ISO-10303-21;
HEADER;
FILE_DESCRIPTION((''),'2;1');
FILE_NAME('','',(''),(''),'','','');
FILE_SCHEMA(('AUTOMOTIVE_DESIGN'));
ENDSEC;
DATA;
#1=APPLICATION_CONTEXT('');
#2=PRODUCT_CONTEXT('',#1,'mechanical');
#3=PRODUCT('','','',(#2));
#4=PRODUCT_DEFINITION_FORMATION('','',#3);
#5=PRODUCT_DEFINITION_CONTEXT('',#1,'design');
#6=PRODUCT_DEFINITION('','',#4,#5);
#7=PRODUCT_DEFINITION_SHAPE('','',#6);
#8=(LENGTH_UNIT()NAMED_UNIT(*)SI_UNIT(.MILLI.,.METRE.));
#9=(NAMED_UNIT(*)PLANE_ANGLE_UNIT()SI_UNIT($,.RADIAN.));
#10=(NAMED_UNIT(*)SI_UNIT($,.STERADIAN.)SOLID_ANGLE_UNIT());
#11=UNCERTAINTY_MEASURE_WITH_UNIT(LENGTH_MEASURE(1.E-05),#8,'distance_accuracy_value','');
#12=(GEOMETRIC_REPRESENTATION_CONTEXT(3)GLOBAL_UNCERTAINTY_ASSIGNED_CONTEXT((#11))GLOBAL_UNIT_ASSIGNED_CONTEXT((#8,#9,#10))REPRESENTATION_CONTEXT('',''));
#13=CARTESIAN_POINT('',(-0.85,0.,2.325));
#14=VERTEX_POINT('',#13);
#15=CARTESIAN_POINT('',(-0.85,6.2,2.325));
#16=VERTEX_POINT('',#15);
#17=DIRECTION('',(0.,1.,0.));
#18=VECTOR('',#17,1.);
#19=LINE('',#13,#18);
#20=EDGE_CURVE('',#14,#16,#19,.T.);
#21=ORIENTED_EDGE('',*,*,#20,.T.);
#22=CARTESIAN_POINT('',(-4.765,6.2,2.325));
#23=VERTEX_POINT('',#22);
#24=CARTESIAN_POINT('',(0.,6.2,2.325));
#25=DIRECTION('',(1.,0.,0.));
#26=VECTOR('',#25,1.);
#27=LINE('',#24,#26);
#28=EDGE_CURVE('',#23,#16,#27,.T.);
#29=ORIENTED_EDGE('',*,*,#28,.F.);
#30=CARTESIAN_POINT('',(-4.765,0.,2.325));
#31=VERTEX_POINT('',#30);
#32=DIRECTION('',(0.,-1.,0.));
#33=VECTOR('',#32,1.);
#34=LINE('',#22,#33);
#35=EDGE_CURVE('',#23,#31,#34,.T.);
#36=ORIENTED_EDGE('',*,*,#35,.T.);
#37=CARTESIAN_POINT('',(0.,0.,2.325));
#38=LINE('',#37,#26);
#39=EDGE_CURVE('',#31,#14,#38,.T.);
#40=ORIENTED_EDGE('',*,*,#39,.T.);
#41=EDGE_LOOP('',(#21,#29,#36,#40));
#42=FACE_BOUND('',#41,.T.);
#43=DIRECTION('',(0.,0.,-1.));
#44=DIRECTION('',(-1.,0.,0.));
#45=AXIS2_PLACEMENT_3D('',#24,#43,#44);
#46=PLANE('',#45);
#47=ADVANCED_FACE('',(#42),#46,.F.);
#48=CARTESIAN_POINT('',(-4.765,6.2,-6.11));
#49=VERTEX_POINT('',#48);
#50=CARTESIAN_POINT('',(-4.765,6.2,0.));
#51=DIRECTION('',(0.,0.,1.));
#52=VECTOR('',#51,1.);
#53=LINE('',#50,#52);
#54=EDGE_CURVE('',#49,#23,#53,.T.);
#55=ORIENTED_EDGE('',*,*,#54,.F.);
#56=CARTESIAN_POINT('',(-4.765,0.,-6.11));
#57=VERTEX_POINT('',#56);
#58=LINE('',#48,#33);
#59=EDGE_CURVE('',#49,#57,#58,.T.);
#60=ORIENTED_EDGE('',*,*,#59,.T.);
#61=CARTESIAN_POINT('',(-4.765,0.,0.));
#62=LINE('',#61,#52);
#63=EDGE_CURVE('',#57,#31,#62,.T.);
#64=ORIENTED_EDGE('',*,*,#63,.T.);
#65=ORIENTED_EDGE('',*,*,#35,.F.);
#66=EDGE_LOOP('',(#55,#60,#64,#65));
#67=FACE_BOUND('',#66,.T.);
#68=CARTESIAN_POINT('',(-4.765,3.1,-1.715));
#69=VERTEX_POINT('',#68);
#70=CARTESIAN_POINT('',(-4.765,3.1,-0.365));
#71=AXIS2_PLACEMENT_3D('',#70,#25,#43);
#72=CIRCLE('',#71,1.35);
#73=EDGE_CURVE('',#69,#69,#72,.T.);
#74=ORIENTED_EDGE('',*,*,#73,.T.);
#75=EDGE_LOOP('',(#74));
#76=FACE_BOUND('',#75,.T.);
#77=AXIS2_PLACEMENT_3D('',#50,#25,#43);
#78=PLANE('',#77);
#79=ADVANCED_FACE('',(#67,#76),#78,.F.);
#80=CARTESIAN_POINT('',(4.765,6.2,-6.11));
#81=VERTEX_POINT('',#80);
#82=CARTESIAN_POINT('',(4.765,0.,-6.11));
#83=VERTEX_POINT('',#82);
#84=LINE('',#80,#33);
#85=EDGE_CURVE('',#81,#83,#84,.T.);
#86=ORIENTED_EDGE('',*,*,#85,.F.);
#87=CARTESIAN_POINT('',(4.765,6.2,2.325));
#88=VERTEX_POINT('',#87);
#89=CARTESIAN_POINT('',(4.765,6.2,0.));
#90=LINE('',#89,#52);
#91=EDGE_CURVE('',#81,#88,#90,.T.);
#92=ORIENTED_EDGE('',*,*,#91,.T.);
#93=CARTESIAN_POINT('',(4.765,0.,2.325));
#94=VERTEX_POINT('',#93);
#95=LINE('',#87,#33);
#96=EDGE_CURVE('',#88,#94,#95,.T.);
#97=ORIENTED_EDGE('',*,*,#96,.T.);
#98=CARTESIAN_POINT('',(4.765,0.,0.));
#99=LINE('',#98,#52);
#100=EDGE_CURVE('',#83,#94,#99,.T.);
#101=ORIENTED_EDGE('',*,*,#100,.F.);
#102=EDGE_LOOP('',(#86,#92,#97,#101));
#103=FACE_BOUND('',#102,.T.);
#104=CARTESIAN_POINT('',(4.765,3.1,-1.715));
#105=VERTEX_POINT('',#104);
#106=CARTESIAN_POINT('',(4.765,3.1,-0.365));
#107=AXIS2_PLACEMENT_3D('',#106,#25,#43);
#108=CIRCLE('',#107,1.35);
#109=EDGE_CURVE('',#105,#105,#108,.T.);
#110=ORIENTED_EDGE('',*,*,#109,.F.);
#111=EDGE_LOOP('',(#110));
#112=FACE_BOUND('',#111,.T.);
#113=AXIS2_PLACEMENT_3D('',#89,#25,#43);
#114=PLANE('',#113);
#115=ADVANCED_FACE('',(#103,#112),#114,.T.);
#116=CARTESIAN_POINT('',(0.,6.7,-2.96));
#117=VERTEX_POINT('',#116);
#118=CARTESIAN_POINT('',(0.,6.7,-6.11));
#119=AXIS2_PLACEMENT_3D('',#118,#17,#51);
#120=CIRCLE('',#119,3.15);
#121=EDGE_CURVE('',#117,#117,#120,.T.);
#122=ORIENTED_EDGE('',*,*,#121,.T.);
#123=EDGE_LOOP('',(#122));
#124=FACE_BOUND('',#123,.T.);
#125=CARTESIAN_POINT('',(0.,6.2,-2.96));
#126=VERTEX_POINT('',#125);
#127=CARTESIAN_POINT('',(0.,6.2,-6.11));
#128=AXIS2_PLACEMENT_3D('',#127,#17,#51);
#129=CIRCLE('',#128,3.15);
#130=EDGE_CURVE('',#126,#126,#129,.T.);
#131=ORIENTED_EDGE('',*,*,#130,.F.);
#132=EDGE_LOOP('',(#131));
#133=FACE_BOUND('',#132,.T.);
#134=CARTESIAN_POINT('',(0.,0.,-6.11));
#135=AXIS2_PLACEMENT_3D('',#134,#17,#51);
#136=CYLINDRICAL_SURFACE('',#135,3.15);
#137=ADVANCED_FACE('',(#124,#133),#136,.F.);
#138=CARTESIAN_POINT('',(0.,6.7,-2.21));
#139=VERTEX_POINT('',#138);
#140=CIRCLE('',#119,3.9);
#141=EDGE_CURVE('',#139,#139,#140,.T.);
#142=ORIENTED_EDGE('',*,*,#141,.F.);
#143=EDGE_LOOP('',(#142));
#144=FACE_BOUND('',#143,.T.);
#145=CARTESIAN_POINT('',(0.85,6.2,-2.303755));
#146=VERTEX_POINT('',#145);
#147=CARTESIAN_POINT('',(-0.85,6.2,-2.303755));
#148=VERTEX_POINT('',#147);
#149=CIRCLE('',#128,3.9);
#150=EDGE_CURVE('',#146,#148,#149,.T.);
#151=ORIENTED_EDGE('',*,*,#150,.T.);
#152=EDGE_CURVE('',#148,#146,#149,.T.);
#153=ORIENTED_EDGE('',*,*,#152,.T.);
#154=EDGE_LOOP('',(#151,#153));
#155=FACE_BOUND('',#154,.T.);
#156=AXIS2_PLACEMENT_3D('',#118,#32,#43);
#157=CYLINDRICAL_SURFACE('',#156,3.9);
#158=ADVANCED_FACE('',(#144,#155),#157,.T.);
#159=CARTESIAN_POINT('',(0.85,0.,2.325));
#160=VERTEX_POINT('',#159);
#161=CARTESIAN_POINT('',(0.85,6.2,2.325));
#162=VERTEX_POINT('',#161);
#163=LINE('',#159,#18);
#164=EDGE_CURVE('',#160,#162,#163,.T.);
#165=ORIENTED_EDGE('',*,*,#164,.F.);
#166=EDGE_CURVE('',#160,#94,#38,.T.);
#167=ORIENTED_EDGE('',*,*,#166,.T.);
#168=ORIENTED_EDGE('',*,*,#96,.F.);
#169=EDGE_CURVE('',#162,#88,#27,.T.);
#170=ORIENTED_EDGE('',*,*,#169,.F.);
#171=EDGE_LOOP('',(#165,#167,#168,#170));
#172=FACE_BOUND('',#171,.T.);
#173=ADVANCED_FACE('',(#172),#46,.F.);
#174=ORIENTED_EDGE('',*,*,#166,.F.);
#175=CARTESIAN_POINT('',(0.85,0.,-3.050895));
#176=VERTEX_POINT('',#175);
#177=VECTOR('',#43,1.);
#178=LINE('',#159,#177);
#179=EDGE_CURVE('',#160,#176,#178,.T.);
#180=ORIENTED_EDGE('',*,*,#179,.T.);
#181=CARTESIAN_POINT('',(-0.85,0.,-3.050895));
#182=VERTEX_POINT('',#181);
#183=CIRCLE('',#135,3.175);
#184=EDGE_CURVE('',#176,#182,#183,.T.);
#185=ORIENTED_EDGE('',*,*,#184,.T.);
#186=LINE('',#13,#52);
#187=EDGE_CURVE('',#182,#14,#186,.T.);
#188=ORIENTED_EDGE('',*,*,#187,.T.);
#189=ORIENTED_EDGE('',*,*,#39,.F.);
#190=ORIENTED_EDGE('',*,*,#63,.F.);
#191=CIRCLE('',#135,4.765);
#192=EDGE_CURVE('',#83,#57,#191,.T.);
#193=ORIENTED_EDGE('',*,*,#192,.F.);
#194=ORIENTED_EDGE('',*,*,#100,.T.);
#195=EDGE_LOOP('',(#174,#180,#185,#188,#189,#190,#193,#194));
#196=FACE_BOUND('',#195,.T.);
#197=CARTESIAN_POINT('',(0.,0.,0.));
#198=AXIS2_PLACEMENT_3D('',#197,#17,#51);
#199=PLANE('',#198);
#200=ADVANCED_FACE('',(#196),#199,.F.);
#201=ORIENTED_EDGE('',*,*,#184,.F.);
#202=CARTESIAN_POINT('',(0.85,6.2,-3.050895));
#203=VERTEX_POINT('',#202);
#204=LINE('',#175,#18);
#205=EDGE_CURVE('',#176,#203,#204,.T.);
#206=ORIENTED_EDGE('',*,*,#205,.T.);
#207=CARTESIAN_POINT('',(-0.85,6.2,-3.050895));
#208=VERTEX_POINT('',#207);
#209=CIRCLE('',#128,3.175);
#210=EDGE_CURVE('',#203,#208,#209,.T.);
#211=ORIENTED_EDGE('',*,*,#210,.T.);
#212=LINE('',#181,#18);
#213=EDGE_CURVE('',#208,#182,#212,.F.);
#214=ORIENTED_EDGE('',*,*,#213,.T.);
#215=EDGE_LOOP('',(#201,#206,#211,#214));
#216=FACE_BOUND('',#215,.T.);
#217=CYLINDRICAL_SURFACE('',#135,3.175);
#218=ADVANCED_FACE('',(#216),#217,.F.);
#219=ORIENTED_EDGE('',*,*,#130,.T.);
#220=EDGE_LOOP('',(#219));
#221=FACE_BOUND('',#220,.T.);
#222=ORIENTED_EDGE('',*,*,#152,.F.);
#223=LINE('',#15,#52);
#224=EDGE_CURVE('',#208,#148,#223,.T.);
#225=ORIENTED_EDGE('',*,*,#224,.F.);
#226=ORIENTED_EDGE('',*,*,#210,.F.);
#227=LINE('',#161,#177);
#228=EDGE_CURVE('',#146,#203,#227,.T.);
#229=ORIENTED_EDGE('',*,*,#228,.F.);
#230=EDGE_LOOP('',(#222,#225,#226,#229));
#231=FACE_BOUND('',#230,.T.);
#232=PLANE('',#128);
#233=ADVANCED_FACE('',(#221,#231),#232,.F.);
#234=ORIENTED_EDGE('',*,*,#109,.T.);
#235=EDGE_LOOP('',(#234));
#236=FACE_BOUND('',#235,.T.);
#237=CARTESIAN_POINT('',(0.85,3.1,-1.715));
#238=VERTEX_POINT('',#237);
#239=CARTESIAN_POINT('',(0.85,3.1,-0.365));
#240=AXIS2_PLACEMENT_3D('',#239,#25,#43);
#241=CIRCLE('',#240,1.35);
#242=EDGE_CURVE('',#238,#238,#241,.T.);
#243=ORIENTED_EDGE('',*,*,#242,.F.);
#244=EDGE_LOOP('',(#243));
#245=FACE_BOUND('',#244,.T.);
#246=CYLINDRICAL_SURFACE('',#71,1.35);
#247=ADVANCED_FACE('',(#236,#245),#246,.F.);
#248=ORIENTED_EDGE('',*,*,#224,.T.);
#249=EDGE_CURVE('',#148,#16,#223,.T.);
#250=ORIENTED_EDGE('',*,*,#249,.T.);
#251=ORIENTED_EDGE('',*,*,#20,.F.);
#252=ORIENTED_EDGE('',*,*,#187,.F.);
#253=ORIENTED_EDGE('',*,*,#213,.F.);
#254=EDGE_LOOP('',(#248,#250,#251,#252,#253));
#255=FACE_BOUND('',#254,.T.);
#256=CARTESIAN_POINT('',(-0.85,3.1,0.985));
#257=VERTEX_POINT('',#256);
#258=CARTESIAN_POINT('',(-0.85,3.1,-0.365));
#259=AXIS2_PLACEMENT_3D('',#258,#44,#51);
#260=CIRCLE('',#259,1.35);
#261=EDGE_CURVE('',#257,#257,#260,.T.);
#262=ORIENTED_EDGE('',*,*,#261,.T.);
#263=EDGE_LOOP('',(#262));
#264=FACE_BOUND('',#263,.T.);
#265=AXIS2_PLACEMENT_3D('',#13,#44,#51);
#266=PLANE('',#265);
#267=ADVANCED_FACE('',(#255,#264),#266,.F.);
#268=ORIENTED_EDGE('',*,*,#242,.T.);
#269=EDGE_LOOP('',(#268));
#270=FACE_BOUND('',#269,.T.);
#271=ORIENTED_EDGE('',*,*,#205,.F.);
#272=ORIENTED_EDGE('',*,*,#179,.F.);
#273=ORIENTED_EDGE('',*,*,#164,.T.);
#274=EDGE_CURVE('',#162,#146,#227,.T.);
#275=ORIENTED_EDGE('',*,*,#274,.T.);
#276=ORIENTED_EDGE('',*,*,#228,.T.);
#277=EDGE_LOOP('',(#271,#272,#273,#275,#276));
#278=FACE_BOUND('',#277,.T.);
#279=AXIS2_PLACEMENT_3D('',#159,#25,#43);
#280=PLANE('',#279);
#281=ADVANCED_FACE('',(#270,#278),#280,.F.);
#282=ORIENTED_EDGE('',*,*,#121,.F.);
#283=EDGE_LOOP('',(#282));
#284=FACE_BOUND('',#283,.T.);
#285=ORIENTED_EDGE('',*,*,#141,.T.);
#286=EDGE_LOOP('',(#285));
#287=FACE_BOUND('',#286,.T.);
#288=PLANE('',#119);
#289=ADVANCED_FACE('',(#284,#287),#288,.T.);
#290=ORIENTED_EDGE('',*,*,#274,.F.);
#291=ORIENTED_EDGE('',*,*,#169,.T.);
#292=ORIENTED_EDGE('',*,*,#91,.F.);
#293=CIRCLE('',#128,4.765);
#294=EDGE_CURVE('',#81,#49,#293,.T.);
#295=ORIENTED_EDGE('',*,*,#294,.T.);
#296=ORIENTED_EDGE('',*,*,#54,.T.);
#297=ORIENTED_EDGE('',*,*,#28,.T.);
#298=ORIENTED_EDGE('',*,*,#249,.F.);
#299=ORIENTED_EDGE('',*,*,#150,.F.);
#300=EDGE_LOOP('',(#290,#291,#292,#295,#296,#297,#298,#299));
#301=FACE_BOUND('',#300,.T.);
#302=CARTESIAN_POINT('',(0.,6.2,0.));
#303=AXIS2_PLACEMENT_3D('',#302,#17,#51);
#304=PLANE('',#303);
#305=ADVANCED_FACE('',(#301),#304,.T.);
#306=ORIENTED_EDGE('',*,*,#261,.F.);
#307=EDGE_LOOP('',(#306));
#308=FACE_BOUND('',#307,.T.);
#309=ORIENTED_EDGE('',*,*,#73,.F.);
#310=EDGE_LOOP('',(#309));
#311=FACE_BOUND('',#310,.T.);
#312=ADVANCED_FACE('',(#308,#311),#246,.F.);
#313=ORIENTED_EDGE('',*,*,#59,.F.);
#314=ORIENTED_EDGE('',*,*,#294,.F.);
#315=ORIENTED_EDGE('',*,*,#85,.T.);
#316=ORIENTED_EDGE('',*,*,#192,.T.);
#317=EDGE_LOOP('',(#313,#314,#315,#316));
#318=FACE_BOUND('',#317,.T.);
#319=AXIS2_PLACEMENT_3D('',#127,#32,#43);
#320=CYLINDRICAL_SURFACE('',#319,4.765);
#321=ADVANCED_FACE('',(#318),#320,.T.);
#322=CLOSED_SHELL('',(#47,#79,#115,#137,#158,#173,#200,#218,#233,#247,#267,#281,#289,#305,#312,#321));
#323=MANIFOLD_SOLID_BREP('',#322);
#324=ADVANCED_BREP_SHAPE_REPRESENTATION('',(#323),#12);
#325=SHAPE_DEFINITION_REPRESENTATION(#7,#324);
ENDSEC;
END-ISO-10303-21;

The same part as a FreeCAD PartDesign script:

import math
import FreeCAD as App
import Part
import Sketcher
from FreeCAD import Vector


def add_polygon(sketch, points):
    """Adds a closed chain of lines whose ends are joined by coincident constraints."""
    first, n = sketch.GeometryCount, len(points)
    for a, b in zip(points, points[1:] + points[:1]):
        sketch.addGeometry(Part.LineSegment(App.Vector(*a, 0), App.Vector(*b, 0)), False)
    for i in range(n):
        sketch.addConstraint(Sketcher.Constraint("Coincident", first + i, 2, first + (i + 1) % n, 1))

doc = App.newDocument("Part")
params = doc.addObject("Spreadsheet::Sheet", "Params")
for row, (alias, value) in enumerate([
    ("pad1_length", "6.2 mm"),
    ("sketch2_diameter", "6.35 mm"),
    ("pocket1_length", "6.2 mm"),
    ("sketch3_width", "1.7 mm"),
    ("sketch3_height", "5.8 mm"),
    ("pocket2_length", "6.2 mm"),
    ("sketch4_diameter", "2.7 mm"),
    ("sketch5_diameter", "7.8 mm"),
    ("pad2_length", "0.5 mm"),
    ("sketch6_diameter", "6.3 mm"),
], start=1):
    params.set(f"A{row}", alias)
    params.set(f"B{row}", "=" + value)
    params.setAlias(f"B{row}", alias)

body = doc.addObject("PartDesign::Body", "Body")

# Sketch on XZ plane
sketch1 = body.newObject("Sketcher::SketchObject", "Sketch")
sketch1.AttachmentSupport = (doc.getObject("XZ_Plane"), [""])
sketch1.MapMode = "FlatFace"
sketch1.addGeometry([
    Part.LineSegment(Vector(-4.8, 2.3, 0), Vector(4.8, 2.3, 0)),
    Part.LineSegment(Vector(4.8, 2.3, 0), Vector(4.8, -6.1, 0)),
    Part.ArcOfCircle(Part.Circle(Vector(0, -6.1, 0), Vector(0, 0, 1), 4.8), math.radians(180), math.radians(360)),
    Part.LineSegment(Vector(-4.8, -6.1, 0), Vector(-4.8, 2.3, 0)),
], False)
sketch1.addConstraint([
    Sketcher.Constraint("Coincident", 0, 2, 1, 1),
    Sketcher.Constraint("Tangent", 1, 2, 2, 2),
    Sketcher.Constraint("Tangent", 2, 1, 3, 1),
    Sketcher.Constraint("Coincident", 3, 2, 0, 1),
    Sketcher.Constraint("Horizontal", 0),
    Sketcher.Constraint("Vertical", 1),
    Sketcher.Constraint("Vertical", 3),
    Sketcher.Constraint("PointOnObject", 2, 3, -2),
    Sketcher.Constraint("Radius", 2, 4.765),
    Sketcher.Constraint("DistanceY", 1, 2, 1, 1, 8.435),
    Sketcher.Constraint("DistanceY", 2, 3, -1, 1, 6.11),
])
pad1 = body.newObject("PartDesign::Pad", "Pad")
pad1.Profile = sketch1
pad1.setExpression("Length", "Params.pad1_length")
pad1.Reversed = True

# Sketch on XZ plane
sketch2 = body.newObject("Sketcher::SketchObject", "Sketch001")
sketch2.AttachmentSupport = (doc.getObject("XZ_Plane"), [""])
sketch2.MapMode = "FlatFace"
sketch2.AttachmentOffset = App.Placement(Vector(0, 0, -6.2), App.Rotation())
sketch2.addGeometry(Part.Circle(Vector(0, -6.1, 0), Vector(0, 0, 1), 3.2), False)
sketch2.addConstraint([
    Sketcher.Constraint("PointOnObject", 0, 3, -2),
    Sketcher.Constraint("Diameter", 0, 6.35),
    Sketcher.Constraint("DistanceY", 0, 3, -1, 1, 6.11),
])
sketch2.setExpression("Constraints[1]", "Params.sketch2_diameter")
pocket1 = body.newObject("PartDesign::Pocket", "Pocket")
pocket1.Profile = sketch2
pocket1.setExpression("Length", "Params.pocket1_length")
pocket1.Reversed = True

# Sketch on XZ plane
sketch3 = body.newObject("Sketcher::SketchObject", "Sketch002")
sketch3.AttachmentSupport = (doc.getObject("XZ_Plane"), [""])
sketch3.MapMode = "FlatFace"
sketch3.AttachmentOffset = App.Placement(Vector(0, 0, -6.2), App.Rotation())
add_polygon(sketch3, [(-0.8, -3.5), (-0.8, 2.3), (0.8, 2.3), (0.8, -3.5)])  # lines 0-3
sketch3.addConstraint([
    Sketcher.Constraint("Vertical", 0),
    Sketcher.Constraint("Horizontal", 1),
    Sketcher.Constraint("Vertical", 2),
    Sketcher.Constraint("Horizontal", 3),
    Sketcher.Constraint("DistanceX", 1, 1, 1, 2, 1.7),
    Sketcher.Constraint("DistanceY", 0, 1, 0, 2, 5.8),
    Sketcher.Constraint("DistanceX", 0, 2, -1, 1, 0.85),
    Sketcher.Constraint("DistanceY", -1, 1, 0, 2, 2.325),
])
sketch3.setExpression("Constraints[8]", "Params.sketch3_width")
sketch3.setExpression("Constraints[9]", "Params.sketch3_height")
pocket2 = body.newObject("PartDesign::Pocket", "Pocket001")
pocket2.Profile = sketch3
pocket2.setExpression("Length", "Params.pocket2_length")
pocket2.Reversed = True

# Sketch on YZ plane
sketch4 = body.newObject("Sketcher::SketchObject", "Sketch003")
sketch4.AttachmentSupport = (doc.getObject("YZ_Plane"), [""])
sketch4.MapMode = "FlatFace"
sketch4.AttachmentOffset = App.Placement(Vector(0, 0, 4.765), App.Rotation())
sketch4.addGeometry(Part.Circle(Vector(3.1, -0.4, 0), Vector(0, 0, 1), 1.4), False)
sketch4.addConstraint([
    Sketcher.Constraint("Diameter", 0, 2.7),
    Sketcher.Constraint("DistanceX", -1, 1, 0, 3, 3.1),
    Sketcher.Constraint("DistanceY", 0, 3, -1, 1, 0.365),
])
sketch4.setExpression("Constraints[0]", "Params.sketch4_diameter")
pocket3 = body.newObject("PartDesign::Pocket", "Pocket002")
pocket3.Profile = sketch4
pocket3.Type = "ThroughAll"

# Sketch on XZ plane
sketch5 = body.newObject("Sketcher::SketchObject", "Sketch004")
sketch5.AttachmentSupport = (doc.getObject("XZ_Plane"), [""])
sketch5.MapMode = "FlatFace"
sketch5.AttachmentOffset = App.Placement(Vector(0, 0, -6.2), App.Rotation())
sketch5.addGeometry(Part.Circle(Vector(0, -6.1, 0), Vector(0, 0, 1), 3.9), False)
sketch5.addConstraint([
    Sketcher.Constraint("PointOnObject", 0, 3, -2),
    Sketcher.Constraint("Diameter", 0, 7.8),
    Sketcher.Constraint("DistanceY", 0, 3, -1, 1, 6.11),
])
sketch5.setExpression("Constraints[1]", "Params.sketch5_diameter")
pad2 = body.newObject("PartDesign::Pad", "Pad001")
pad2.Profile = sketch5
pad2.setExpression("Length", "Params.pad2_length")
pad2.Reversed = True

# Sketch on XZ plane
sketch6 = body.newObject("Sketcher::SketchObject", "Sketch005")
sketch6.AttachmentSupport = (doc.getObject("XZ_Plane"), [""])
sketch6.MapMode = "FlatFace"
sketch6.AttachmentOffset = App.Placement(Vector(0, 0, -6.7), App.Rotation())
sketch6.addGeometry(Part.Circle(Vector(0, -6.1, 0), Vector(0, 0, 1), 3.1), False)
sketch6.addConstraint([
    Sketcher.Constraint("PointOnObject", 0, 3, -2),
    Sketcher.Constraint("Diameter", 0, 6.3),
    Sketcher.Constraint("DistanceY", 0, 3, -1, 1, 6.11),
])
sketch6.setExpression("Constraints[1]", "Params.sketch6_diameter")
pocket4 = body.newObject("PartDesign::Pocket", "Pocket003")
pocket4.Profile = sketch6
pocket4.Type = "ThroughAll"
pocket4.Reversed = True

doc.recompute()
